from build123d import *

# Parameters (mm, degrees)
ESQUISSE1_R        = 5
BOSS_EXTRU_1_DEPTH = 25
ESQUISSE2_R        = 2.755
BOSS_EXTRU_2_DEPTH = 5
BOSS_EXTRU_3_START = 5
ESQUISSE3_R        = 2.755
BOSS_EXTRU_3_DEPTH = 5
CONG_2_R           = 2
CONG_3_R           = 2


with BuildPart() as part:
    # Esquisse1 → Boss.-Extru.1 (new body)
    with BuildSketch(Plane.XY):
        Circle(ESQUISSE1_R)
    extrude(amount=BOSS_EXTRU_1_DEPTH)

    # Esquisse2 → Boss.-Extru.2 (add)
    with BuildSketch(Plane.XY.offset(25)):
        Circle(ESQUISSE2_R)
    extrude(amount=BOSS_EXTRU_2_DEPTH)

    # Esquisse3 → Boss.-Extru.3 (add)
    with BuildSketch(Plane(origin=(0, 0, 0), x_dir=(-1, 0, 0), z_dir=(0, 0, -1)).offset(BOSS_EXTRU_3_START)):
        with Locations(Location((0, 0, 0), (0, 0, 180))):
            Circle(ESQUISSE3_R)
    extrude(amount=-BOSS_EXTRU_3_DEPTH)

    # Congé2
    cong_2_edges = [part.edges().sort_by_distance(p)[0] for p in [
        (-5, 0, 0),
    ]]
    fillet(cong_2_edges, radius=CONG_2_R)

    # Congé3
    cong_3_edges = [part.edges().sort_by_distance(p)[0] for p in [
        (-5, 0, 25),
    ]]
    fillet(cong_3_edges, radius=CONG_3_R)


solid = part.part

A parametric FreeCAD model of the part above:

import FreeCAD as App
import Part
import Sketcher
from FreeCAD import Vector
Q = App.Units.Quantity


def edges_at(feature, points):
    """Names of the edges that pass closest to the given points."""
    edges = feature.Shape.Edges
    near = lambda p: min(range(len(edges)), key=lambda i: edges[i].distToShape(Part.Vertex(*p))[0])
    return sorted({f"Edge{near(p) + 1}" for p in points})

doc = App.newDocument("Part")
body = doc.addObject("PartDesign::Body", "Body")

sketch1 = doc.addObject("Sketcher::SketchObject", "Sketch")
body.addObject(sketch1)
sketch1.AttachmentSupport = (doc.XY_Plane, [""])
sketch1.MapMode = "FlatFace"
sketch1.addGeometry(Part.Circle(Vector(0, 0, 0), Vector(0, 0, 1), 5), False)
sketch1.addConstraint([
    Sketcher.Constraint("Coincident", 0, 3, -1, 1),
    Sketcher.Constraint("Diameter", 0, Q("10 mm")),
])
pad1 = doc.addObject("PartDesign::Pad", "Pad")
body.addObject(pad1)
pad1.Profile = sketch1
pad1.Length = 25

sketch2 = doc.addObject("Sketcher::SketchObject", "Sketch001")
body.addObject(sketch2)
sketch2.AttachmentSupport = (doc.XY_Plane, [""])
sketch2.MapMode = "FlatFace"
sketch2.AttachmentOffset = App.Placement(Vector(0, 0, 25), App.Rotation())
sketch2.addGeometry(Part.Circle(Vector(0, 0, 0), Vector(0, 0, 1), 2.8), False)
sketch2.addConstraint([
    Sketcher.Constraint("Coincident", 0, 3, -1, 1),
    Sketcher.Constraint("Diameter", 0, Q("5.51 mm")),
])
pad2 = doc.addObject("PartDesign::Pad", "Pad001")
body.addObject(pad2)
pad2.Profile = sketch2
pad2.Length = 5

sketch3 = doc.addObject("Sketcher::SketchObject", "Sketch002")
body.addObject(sketch3)
sketch3.AttachmentSupport = (doc.XY_Plane, [""])
sketch3.MapMode = "FlatFace"
sketch3.AttachmentOffset = App.Placement(Vector(0, 0, -5), App.Rotation())
sketch3.addGeometry(Part.Circle(Vector(0, 0, 0), Vector(0, 0, 1), 2.8), False)
sketch3.addConstraint([
    Sketcher.Constraint("Coincident", 0, 3, -1, 1),
    Sketcher.Constraint("Diameter", 0, Q("5.51 mm")),
])
pad3 = doc.addObject("PartDesign::Pad", "Pad002")
body.addObject(pad3)
pad3.Profile = sketch3
pad3.Length = 5
doc.recompute()

fillet = doc.addObject("PartDesign::Fillet", "Fillet")
body.addObject(fillet)
fillet.Base = (pad3, edges_at(pad3, [(-5, 0, 0)]))
fillet.Radius = 2
doc.recompute()

fillet2 = doc.addObject("PartDesign::Fillet", "Fillet001")
body.addObject(fillet2)
fillet2.Base = (fillet, edges_at(fillet, [(-5, 0, 25)]))
fillet2.Radius = 2

doc.recompute()
